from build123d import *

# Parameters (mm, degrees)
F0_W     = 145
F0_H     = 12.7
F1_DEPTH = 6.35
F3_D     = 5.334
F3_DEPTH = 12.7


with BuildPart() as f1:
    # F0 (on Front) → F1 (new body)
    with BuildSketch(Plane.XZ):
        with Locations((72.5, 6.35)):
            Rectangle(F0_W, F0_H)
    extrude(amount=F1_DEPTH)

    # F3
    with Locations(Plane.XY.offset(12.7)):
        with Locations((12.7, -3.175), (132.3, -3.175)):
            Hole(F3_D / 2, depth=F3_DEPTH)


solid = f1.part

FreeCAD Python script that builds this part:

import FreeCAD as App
import Part
import Sketcher

V = App.Vector
Q = App.Units.Quantity

doc = App.newDocument("Part")
body = doc.addObject("PartDesign::Body", "Body")

# Sketch on XZ plane
sketch1 = body.newObject("Sketcher::SketchObject", "Sketch")
sketch1.AttachmentSupport = (doc.getObject("XZ_Plane"), [""])
sketch1.MapMode = "FlatFace"
sketch1.addGeometry(Part.LineSegment(V(0, 13, 0), V(0, 0, 0)), False)
sketch1.addGeometry(Part.LineSegment(V(0, 0, 0), V(145, 0, 0)), False)
sketch1.addGeometry(Part.LineSegment(V(145, 0, 0), V(145, 13, 0)), False)
sketch1.addGeometry(Part.LineSegment(V(145, 13, 0), V(0, 13, 0)), False)
sketch1.addConstraint(Sketcher.Constraint("Coincident", 0, 2, 1, 1))
sketch1.addConstraint(Sketcher.Constraint("Coincident", 1, 2, 2, 1))
sketch1.addConstraint(Sketcher.Constraint("Coincident", 2, 2, 3, 1))
sketch1.addConstraint(Sketcher.Constraint("Coincident", 3, 2, 0, 1))
sketch1.addConstraint(Sketcher.Constraint("Vertical", 0))
sketch1.addConstraint(Sketcher.Constraint("Horizontal", 1))
sketch1.addConstraint(Sketcher.Constraint("Vertical", 2))
sketch1.addConstraint(Sketcher.Constraint("Horizontal", 3))
sketch1.addConstraint(Sketcher.Constraint("Coincident", 0, 2, -1, 1))
sketch1.addConstraint(Sketcher.Constraint("DistanceY", 0, 2, 0, 1, Q("0.5 in")))
sketch1.addConstraint(Sketcher.Constraint("DistanceX", 1, 1, 1, 2, 145.0))
pad1 = body.newObject("PartDesign::Pad", "Pad")
pad1.Profile = sketch1
pad1.Length = Q("0.25 in")

# Sketch on XY plane
sketch2 = body.newObject("Sketcher::SketchObject", "Sketch001")
sketch2.AttachmentSupport = (doc.getObject("XY_Plane"), [""])
sketch2.MapMode = "FlatFace"
sketch2.AttachmentOffset = App.Placement(V(0, 0, 0.5 * 25.4), App.Rotation())
sketch2.addGeometry(Part.Circle(V(12.7, -3.2, 0), V(0, 0, 1), 2.7), False)
sketch2.addGeometry(Part.Circle(V(132.3, -3.2, 0), V(0, 0, 1), 2.7), False)
sketch2.addConstraint(Sketcher.Constraint("Equal", 0, 1))
sketch2.addConstraint(Sketcher.Constraint("Horizontal", 0, 3, 1, 3))
sketch2.addConstraint(Sketcher.Constraint("Diameter", 0, Q("0.21 in")))
sketch2.addConstraint(Sketcher.Constraint("DistanceX", -1, 1, 0, 3, Q("0.5 in")))
sketch2.addConstraint(Sketcher.Constraint("DistanceY", 0, 3, -1, 1, Q("0.125 in")))
sketch2.addConstraint(Sketcher.Constraint("DistanceX", -1, 1, 1, 3, 132.3))
doc.recompute()
hole = body.newObject("PartDesign::Hole", "Hole")
hole.Profile = sketch2
hole.ThreadType = "None"
hole.Diameter = Q("0.21 in")
hole.DepthType = "Dimension"
hole.Depth = Q("0.5 in")
hole.DrillPoint = "Flat"

doc.recompute()
